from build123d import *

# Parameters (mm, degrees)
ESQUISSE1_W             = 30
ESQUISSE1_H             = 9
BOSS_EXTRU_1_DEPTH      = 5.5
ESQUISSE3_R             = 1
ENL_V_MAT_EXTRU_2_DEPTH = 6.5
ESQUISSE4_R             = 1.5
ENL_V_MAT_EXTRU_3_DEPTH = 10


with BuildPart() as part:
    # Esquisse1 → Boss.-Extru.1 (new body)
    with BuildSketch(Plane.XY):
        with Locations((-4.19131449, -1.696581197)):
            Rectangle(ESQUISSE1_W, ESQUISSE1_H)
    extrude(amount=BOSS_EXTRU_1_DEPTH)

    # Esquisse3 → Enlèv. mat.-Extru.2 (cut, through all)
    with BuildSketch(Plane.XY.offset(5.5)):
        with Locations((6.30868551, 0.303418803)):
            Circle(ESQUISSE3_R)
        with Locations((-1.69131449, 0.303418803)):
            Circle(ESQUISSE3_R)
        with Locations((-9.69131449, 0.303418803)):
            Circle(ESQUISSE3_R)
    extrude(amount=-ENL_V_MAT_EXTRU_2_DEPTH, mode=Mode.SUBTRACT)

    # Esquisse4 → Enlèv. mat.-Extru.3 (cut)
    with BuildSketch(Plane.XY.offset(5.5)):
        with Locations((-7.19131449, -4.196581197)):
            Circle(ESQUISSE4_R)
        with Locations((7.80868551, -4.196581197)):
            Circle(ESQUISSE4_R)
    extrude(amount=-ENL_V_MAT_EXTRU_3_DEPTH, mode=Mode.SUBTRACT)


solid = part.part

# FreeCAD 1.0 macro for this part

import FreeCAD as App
import Part
import Sketcher

V = App.Vector


def add_polygon(sketch, points):
    """Adds a closed chain of lines whose ends are joined by coincident constraints."""
    first, n = sketch.GeometryCount, len(points)
    for a, b in zip(points, points[1:] + points[:1]):
        sketch.addGeometry(Part.LineSegment(App.Vector(*a, 0), App.Vector(*b, 0)), False)
    for i in range(n):
        sketch.addConstraint(Sketcher.Constraint("Coincident", first + i, 2, first + (i + 1) % n, 1))

doc = App.newDocument("Part")
params = doc.addObject("Spreadsheet::Sheet", "Params")
for row, (alias, value) in enumerate([
    ("sketch1_width", "30 mm"),
    ("sketch1_height", "9 mm"),
    ("pad1_length", "5.5 mm"),
    ("sketch2_diameter", "2 mm"),
    ("sketch3_diameter", "3 mm"),
    ("pocket2_length", "10 mm"),
], start=1):
    params.set(f"A{row}", alias)
    params.set(f"B{row}", "=" + value)
    params.setAlias(f"B{row}", alias)

body = doc.addObject("PartDesign::Body", "Body")

# Sketch on XY plane
sketch1 = doc.addObject("Sketcher::SketchObject", "Sketch")
body.addObject(sketch1)
sketch1.AttachmentSupport = (doc.XY_Plane, [""])
sketch1.MapMode = "FlatFace"
add_polygon(sketch1, [(-19, 3), (-19, -6), (11, -6), (11, 3)])  # lines 0-3
sketch1.addConstraint(Sketcher.Constraint("Vertical", 0))
sketch1.addConstraint(Sketcher.Constraint("Horizontal", 1))
sketch1.addConstraint(Sketcher.Constraint("Vertical", 2))
sketch1.addConstraint(Sketcher.Constraint("Horizontal", 3))
sketch1.addConstraint(Sketcher.Constraint("DistanceX", 1, 1, 1, 2, 30.0))
sketch1.addConstraint(Sketcher.Constraint("DistanceY", 0, 2, 0, 1, 9.0))
sketch1.addConstraint(Sketcher.Constraint("DistanceY", 0, 2, -1, 1, 6.196581))
sketch1.addConstraint(Sketcher.Constraint("DistanceX", 0, 2, -1, 1, 19.191314))
sketch1.setExpression("Constraints[8]", "Params.sketch1_width")
sketch1.setExpression("Constraints[9]", "Params.sketch1_height")
pad1 = doc.addObject("PartDesign::Pad", "Pad")
body.addObject(pad1)
pad1.Profile = sketch1
pad1.setExpression("Length", "Params.pad1_length")

# Sketch on XY plane
sketch2 = doc.addObject("Sketcher::SketchObject", "Sketch001")
body.addObject(sketch2)
sketch2.AttachmentSupport = (doc.XY_Plane, [""])
sketch2.MapMode = "FlatFace"
sketch2.AttachmentOffset = App.Placement(V(0, 0, 5.5), App.Rotation())
sketch2.addGeometry(Part.Circle(V(6.3, 0.3, 0), V(0, 0, 1), 1), False)
sketch2.addGeometry(Part.Circle(V(-1.7, 0.3, 0), V(0, 0, 1), 1), False)
sketch2.addGeometry(Part.Circle(V(-9.7, 0.3, 0), V(0, 0, 1), 1), False)
sketch2.addConstraint(Sketcher.Constraint("Equal", 0, 1))
sketch2.addConstraint(Sketcher.Constraint("Equal", 1, 2))
sketch2.addConstraint(Sketcher.Constraint("Horizontal", 0, 3, 1, 3))
sketch2.addConstraint(Sketcher.Constraint("Horizontal", 1, 3, 2, 3))
sketch2.addConstraint(Sketcher.Constraint("Diameter", 0, 2.0))
sketch2.addConstraint(Sketcher.Constraint("DistanceX", 1, 3, 0, 3, 8.0))
sketch2.addConstraint(Sketcher.Constraint("DistanceX", 2, 3, 1, 3, 8.0))
sketch2.addConstraint(Sketcher.Constraint("DistanceY", -1, 1, 0, 3, 0.303419))
sketch2.addConstraint(Sketcher.Constraint("DistanceX", -1, 1, 0, 3, 6.308686))
sketch2.setExpression("Constraints[4]", "Params.sketch2_diameter")
pocket1 = doc.addObject("PartDesign::Pocket", "Pocket")
body.addObject(pocket1)
pocket1.Profile = sketch2
pocket1.Type = "ThroughAll"

# Sketch on XY plane
sketch3 = doc.addObject("Sketcher::SketchObject", "Sketch002")
body.addObject(sketch3)
sketch3.AttachmentSupport = (doc.XY_Plane, [""])
sketch3.MapMode = "FlatFace"
sketch3.AttachmentOffset = App.Placement(V(0, 0, 5.5), App.Rotation())
sketch3.addGeometry(Part.Circle(V(-7.2, -4.2, 0), V(0, 0, 1), 1.5), False)
sketch3.addGeometry(Part.Circle(V(7.8, -4.2, 0), V(0, 0, 1), 1.5), False)
sketch3.addConstraint(Sketcher.Constraint("Equal", 0, 1))
sketch3.addConstraint(Sketcher.Constraint("Horizontal", 0, 3, 1, 3))
sketch3.addConstraint(Sketcher.Constraint("Diameter", 0, 3.0))
sketch3.addConstraint(Sketcher.Constraint("DistanceX", 0, 3, 1, 3, 15.0))
sketch3.addConstraint(Sketcher.Constraint("DistanceY", 0, 3, -1, 1, 4.196581))
sketch3.addConstraint(Sketcher.Constraint("DistanceX", 0, 3, -1, 1, 7.191314))
sketch3.setExpression("Constraints[2]", "Params.sketch3_diameter")
pocket2 = doc.addObject("PartDesign::Pocket", "Pocket001")
body.addObject(pocket2)
pocket2.Profile = sketch3
pocket2.setExpression("Length", "Params.pocket2_length")

doc.recompute()
